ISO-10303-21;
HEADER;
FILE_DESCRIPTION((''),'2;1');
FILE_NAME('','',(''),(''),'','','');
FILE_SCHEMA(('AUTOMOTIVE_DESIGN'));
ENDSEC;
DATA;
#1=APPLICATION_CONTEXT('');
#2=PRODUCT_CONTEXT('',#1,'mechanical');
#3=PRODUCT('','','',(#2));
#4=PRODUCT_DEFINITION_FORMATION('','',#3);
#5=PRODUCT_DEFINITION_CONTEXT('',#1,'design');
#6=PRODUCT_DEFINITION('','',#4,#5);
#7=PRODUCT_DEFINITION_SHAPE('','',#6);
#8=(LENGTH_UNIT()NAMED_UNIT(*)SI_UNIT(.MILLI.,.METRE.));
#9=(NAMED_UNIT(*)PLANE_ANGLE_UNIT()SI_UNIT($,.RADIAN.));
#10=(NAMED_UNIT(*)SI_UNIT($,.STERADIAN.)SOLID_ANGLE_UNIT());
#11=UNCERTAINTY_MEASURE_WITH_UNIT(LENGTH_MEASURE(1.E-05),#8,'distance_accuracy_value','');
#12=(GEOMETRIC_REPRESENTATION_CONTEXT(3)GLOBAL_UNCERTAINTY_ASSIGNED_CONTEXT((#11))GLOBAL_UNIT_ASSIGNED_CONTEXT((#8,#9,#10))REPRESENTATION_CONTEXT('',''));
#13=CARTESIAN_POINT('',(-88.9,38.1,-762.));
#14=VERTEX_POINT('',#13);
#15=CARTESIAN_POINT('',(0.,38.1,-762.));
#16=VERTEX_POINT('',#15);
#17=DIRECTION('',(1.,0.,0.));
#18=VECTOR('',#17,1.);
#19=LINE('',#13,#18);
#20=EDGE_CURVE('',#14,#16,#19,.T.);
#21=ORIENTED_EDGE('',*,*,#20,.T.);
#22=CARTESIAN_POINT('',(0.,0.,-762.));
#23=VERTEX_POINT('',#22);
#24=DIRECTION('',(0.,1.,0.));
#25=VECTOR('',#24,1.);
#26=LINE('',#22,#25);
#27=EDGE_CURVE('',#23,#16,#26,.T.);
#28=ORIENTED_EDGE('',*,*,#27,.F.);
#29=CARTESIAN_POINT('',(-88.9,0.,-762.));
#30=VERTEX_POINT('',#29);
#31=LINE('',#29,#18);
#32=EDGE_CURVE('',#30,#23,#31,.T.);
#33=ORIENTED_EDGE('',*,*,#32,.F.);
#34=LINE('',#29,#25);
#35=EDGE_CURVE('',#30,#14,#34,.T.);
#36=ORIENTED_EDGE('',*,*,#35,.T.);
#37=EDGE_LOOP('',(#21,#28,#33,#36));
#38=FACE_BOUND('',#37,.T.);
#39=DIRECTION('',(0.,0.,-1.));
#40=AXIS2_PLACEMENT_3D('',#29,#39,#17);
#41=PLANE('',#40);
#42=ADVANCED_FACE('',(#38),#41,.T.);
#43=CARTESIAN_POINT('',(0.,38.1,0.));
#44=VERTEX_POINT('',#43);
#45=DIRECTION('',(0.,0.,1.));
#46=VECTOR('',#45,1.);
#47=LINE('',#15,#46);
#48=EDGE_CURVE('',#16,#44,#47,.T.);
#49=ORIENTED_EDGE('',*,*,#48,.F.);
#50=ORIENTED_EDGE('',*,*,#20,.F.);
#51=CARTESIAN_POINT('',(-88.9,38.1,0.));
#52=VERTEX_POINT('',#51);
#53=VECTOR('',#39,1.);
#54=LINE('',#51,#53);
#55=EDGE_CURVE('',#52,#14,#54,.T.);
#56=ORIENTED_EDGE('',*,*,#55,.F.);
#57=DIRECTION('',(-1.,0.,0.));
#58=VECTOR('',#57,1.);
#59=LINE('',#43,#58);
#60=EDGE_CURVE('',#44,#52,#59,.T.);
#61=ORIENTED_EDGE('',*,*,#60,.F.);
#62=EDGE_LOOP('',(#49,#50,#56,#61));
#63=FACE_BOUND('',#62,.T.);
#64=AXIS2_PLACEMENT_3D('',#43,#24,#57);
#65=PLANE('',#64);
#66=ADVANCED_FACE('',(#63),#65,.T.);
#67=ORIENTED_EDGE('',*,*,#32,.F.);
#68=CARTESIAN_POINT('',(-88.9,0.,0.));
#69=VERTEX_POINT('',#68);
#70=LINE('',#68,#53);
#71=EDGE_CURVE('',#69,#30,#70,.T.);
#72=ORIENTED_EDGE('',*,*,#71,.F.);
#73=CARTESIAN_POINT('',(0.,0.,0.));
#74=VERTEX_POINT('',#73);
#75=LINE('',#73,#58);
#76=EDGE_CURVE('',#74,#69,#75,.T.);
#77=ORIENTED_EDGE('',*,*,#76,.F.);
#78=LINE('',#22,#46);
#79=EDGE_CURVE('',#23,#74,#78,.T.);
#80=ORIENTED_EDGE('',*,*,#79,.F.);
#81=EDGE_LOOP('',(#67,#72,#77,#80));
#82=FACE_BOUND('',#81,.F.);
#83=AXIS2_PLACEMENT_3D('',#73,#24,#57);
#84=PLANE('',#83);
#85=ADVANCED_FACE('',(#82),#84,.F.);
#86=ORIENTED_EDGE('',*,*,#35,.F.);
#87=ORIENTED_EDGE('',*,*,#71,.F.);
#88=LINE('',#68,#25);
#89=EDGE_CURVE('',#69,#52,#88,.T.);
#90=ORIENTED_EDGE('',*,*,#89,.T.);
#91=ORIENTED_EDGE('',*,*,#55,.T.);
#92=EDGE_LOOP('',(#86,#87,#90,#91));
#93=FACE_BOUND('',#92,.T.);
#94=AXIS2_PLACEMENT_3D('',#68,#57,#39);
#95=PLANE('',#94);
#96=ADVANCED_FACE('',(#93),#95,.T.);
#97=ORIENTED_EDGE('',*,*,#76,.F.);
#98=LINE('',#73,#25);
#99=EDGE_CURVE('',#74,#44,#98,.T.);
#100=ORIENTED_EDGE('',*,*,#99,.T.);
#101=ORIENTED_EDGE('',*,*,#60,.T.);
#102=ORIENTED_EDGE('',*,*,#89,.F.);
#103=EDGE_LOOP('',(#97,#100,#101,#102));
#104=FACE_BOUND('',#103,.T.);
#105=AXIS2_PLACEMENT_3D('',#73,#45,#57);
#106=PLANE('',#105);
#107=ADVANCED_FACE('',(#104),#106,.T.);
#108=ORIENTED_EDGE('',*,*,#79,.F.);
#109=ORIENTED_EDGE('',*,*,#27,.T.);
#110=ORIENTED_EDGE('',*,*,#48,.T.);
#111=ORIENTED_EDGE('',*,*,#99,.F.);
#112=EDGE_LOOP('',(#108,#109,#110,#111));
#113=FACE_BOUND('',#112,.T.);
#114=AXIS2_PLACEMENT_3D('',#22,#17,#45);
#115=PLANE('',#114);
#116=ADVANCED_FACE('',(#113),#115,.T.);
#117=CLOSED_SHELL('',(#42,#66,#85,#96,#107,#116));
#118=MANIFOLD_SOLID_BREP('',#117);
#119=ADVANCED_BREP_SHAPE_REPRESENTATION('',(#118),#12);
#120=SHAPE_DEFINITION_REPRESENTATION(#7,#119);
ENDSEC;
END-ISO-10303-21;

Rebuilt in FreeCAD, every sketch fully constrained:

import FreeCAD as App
import Part
import Sketcher
from FreeCAD import Vector
Q = App.Units.Quantity


def add_polygon(sketch, points):
    """Adds a closed chain of lines whose ends are joined by coincident constraints."""
    first, n = sketch.GeometryCount, len(points)
    for a, b in zip(points, points[1:] + points[:1]):
        sketch.addGeometry(Part.LineSegment(App.Vector(*a, 0), App.Vector(*b, 0)), False)
    for i in range(n):
        sketch.addConstraint(Sketcher.Constraint("Coincident", first + i, 2, first + (i + 1) % n, 1))

doc = App.newDocument("Part")
body = doc.addObject("PartDesign::Body", "Body")

sketch1 = doc.addObject("Sketcher::SketchObject", "Sketch")
body.addObject(sketch1)
sketch1.AttachmentSupport = (doc.XZ_Plane, [""])
sketch1.MapMode = "FlatFace"
add_polygon(sketch1, [(-88.9, 0), (0, 0), (0, -762), (-88.9, -762)])
sketch1.addConstraint(Sketcher.Constraint("Horizontal", 0))
sketch1.addConstraint(Sketcher.Constraint("Vertical", 1))
sketch1.addConstraint(Sketcher.Constraint("Horizontal", 2))
sketch1.addConstraint(Sketcher.Constraint("Vertical", 3))
sketch1.addConstraint(Sketcher.Constraint("Coincident", 0, 2, -1, 1))
sketch1.addConstraint(Sketcher.Constraint("DistanceY", 1, 2, 1, 1, Q("30 in")))
sketch1.addConstraint(Sketcher.Constraint("DistanceX", 0, 1, 0, 2, Q("3.5 in")))
pad1 = doc.addObject("PartDesign::Pad", "Pad")
body.addObject(pad1)
pad1.Profile = sketch1
pad1.Length = Q("1.5 in")
pad1.Reversed = True

doc.recompute()
